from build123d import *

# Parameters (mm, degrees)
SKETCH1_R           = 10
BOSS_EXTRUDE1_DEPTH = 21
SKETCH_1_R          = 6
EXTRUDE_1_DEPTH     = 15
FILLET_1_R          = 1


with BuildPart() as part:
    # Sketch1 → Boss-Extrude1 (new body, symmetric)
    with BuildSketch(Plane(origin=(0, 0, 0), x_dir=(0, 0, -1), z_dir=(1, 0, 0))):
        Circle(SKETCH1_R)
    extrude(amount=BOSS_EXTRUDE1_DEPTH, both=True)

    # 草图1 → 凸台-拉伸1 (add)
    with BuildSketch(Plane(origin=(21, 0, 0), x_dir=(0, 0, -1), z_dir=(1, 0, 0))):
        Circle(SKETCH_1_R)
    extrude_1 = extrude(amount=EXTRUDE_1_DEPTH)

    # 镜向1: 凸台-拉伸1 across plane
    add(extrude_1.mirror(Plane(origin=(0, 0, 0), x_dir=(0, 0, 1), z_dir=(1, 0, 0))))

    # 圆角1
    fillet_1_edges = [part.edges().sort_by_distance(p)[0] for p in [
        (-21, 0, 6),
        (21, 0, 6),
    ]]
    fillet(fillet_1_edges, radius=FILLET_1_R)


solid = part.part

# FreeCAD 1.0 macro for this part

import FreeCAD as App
import Part
import Sketcher


def edges_at(feature, points):
    """Names of the edges that pass closest to the given points."""
    edges = feature.Shape.Edges
    near = lambda p: min(range(len(edges)), key=lambda i: edges[i].distToShape(Part.Vertex(*p))[0])
    return sorted({f"Edge{near(p) + 1}" for p in points})

doc = App.newDocument("Part")
body = doc.addObject("PartDesign::Body", "Body")

# Sketch on YZ plane
sketch1 = body.newObject("Sketcher::SketchObject", "Sketch")
sketch1.AttachmentSupport = (doc.getObject("YZ_Plane"), [""])
sketch1.MapMode = "FlatFace"
sketch1.addGeometry(Part.Circle(App.Vector(0, 0, 0), App.Vector(0, 0, 1), 10), False)
sketch1.addConstraint([
    Sketcher.Constraint("Coincident", 0, 3, -1, 1),
    Sketcher.Constraint("Diameter", 0, 20.0),
])
pad1 = body.newObject("PartDesign::Pad", "Pad")
pad1.Profile = sketch1
pad1.Length = 42
pad1.Midplane = True

# Sketch on YZ plane
sketch2 = body.newObject("Sketcher::SketchObject", "Sketch001")
sketch2.AttachmentSupport = (doc.getObject("YZ_Plane"), [""])
sketch2.MapMode = "FlatFace"
sketch2.AttachmentOffset = App.Placement(App.Vector(0, 0, 21), App.Rotation())
sketch2.addGeometry(Part.Circle(App.Vector(0, 0, 0), App.Vector(0, 0, 1), 6), False)
sketch2.addConstraint([
    Sketcher.Constraint("Coincident", 0, 3, -1, 1),
    Sketcher.Constraint("Diameter", 0, 12.0),
])
pad2 = body.newObject("PartDesign::Pad", "Pad001")
pad2.Profile = sketch2
pad2.Length = 15
doc.recompute()

mirrored = body.newObject("PartDesign::Mirrored", "Mirrored")
mirrored.Originals = [pad2]
mirrored.MirrorPlane = (doc.getObject("YZ_Plane"), [""])
body.Tip = mirrored
doc.recompute()

fillet = body.newObject("PartDesign::Fillet", "Fillet")
fillet.Base = (mirrored, edges_at(mirrored, [(-21, 0, 6), (21, 0, 6)]))
fillet.Radius = 1

doc.recompute()
